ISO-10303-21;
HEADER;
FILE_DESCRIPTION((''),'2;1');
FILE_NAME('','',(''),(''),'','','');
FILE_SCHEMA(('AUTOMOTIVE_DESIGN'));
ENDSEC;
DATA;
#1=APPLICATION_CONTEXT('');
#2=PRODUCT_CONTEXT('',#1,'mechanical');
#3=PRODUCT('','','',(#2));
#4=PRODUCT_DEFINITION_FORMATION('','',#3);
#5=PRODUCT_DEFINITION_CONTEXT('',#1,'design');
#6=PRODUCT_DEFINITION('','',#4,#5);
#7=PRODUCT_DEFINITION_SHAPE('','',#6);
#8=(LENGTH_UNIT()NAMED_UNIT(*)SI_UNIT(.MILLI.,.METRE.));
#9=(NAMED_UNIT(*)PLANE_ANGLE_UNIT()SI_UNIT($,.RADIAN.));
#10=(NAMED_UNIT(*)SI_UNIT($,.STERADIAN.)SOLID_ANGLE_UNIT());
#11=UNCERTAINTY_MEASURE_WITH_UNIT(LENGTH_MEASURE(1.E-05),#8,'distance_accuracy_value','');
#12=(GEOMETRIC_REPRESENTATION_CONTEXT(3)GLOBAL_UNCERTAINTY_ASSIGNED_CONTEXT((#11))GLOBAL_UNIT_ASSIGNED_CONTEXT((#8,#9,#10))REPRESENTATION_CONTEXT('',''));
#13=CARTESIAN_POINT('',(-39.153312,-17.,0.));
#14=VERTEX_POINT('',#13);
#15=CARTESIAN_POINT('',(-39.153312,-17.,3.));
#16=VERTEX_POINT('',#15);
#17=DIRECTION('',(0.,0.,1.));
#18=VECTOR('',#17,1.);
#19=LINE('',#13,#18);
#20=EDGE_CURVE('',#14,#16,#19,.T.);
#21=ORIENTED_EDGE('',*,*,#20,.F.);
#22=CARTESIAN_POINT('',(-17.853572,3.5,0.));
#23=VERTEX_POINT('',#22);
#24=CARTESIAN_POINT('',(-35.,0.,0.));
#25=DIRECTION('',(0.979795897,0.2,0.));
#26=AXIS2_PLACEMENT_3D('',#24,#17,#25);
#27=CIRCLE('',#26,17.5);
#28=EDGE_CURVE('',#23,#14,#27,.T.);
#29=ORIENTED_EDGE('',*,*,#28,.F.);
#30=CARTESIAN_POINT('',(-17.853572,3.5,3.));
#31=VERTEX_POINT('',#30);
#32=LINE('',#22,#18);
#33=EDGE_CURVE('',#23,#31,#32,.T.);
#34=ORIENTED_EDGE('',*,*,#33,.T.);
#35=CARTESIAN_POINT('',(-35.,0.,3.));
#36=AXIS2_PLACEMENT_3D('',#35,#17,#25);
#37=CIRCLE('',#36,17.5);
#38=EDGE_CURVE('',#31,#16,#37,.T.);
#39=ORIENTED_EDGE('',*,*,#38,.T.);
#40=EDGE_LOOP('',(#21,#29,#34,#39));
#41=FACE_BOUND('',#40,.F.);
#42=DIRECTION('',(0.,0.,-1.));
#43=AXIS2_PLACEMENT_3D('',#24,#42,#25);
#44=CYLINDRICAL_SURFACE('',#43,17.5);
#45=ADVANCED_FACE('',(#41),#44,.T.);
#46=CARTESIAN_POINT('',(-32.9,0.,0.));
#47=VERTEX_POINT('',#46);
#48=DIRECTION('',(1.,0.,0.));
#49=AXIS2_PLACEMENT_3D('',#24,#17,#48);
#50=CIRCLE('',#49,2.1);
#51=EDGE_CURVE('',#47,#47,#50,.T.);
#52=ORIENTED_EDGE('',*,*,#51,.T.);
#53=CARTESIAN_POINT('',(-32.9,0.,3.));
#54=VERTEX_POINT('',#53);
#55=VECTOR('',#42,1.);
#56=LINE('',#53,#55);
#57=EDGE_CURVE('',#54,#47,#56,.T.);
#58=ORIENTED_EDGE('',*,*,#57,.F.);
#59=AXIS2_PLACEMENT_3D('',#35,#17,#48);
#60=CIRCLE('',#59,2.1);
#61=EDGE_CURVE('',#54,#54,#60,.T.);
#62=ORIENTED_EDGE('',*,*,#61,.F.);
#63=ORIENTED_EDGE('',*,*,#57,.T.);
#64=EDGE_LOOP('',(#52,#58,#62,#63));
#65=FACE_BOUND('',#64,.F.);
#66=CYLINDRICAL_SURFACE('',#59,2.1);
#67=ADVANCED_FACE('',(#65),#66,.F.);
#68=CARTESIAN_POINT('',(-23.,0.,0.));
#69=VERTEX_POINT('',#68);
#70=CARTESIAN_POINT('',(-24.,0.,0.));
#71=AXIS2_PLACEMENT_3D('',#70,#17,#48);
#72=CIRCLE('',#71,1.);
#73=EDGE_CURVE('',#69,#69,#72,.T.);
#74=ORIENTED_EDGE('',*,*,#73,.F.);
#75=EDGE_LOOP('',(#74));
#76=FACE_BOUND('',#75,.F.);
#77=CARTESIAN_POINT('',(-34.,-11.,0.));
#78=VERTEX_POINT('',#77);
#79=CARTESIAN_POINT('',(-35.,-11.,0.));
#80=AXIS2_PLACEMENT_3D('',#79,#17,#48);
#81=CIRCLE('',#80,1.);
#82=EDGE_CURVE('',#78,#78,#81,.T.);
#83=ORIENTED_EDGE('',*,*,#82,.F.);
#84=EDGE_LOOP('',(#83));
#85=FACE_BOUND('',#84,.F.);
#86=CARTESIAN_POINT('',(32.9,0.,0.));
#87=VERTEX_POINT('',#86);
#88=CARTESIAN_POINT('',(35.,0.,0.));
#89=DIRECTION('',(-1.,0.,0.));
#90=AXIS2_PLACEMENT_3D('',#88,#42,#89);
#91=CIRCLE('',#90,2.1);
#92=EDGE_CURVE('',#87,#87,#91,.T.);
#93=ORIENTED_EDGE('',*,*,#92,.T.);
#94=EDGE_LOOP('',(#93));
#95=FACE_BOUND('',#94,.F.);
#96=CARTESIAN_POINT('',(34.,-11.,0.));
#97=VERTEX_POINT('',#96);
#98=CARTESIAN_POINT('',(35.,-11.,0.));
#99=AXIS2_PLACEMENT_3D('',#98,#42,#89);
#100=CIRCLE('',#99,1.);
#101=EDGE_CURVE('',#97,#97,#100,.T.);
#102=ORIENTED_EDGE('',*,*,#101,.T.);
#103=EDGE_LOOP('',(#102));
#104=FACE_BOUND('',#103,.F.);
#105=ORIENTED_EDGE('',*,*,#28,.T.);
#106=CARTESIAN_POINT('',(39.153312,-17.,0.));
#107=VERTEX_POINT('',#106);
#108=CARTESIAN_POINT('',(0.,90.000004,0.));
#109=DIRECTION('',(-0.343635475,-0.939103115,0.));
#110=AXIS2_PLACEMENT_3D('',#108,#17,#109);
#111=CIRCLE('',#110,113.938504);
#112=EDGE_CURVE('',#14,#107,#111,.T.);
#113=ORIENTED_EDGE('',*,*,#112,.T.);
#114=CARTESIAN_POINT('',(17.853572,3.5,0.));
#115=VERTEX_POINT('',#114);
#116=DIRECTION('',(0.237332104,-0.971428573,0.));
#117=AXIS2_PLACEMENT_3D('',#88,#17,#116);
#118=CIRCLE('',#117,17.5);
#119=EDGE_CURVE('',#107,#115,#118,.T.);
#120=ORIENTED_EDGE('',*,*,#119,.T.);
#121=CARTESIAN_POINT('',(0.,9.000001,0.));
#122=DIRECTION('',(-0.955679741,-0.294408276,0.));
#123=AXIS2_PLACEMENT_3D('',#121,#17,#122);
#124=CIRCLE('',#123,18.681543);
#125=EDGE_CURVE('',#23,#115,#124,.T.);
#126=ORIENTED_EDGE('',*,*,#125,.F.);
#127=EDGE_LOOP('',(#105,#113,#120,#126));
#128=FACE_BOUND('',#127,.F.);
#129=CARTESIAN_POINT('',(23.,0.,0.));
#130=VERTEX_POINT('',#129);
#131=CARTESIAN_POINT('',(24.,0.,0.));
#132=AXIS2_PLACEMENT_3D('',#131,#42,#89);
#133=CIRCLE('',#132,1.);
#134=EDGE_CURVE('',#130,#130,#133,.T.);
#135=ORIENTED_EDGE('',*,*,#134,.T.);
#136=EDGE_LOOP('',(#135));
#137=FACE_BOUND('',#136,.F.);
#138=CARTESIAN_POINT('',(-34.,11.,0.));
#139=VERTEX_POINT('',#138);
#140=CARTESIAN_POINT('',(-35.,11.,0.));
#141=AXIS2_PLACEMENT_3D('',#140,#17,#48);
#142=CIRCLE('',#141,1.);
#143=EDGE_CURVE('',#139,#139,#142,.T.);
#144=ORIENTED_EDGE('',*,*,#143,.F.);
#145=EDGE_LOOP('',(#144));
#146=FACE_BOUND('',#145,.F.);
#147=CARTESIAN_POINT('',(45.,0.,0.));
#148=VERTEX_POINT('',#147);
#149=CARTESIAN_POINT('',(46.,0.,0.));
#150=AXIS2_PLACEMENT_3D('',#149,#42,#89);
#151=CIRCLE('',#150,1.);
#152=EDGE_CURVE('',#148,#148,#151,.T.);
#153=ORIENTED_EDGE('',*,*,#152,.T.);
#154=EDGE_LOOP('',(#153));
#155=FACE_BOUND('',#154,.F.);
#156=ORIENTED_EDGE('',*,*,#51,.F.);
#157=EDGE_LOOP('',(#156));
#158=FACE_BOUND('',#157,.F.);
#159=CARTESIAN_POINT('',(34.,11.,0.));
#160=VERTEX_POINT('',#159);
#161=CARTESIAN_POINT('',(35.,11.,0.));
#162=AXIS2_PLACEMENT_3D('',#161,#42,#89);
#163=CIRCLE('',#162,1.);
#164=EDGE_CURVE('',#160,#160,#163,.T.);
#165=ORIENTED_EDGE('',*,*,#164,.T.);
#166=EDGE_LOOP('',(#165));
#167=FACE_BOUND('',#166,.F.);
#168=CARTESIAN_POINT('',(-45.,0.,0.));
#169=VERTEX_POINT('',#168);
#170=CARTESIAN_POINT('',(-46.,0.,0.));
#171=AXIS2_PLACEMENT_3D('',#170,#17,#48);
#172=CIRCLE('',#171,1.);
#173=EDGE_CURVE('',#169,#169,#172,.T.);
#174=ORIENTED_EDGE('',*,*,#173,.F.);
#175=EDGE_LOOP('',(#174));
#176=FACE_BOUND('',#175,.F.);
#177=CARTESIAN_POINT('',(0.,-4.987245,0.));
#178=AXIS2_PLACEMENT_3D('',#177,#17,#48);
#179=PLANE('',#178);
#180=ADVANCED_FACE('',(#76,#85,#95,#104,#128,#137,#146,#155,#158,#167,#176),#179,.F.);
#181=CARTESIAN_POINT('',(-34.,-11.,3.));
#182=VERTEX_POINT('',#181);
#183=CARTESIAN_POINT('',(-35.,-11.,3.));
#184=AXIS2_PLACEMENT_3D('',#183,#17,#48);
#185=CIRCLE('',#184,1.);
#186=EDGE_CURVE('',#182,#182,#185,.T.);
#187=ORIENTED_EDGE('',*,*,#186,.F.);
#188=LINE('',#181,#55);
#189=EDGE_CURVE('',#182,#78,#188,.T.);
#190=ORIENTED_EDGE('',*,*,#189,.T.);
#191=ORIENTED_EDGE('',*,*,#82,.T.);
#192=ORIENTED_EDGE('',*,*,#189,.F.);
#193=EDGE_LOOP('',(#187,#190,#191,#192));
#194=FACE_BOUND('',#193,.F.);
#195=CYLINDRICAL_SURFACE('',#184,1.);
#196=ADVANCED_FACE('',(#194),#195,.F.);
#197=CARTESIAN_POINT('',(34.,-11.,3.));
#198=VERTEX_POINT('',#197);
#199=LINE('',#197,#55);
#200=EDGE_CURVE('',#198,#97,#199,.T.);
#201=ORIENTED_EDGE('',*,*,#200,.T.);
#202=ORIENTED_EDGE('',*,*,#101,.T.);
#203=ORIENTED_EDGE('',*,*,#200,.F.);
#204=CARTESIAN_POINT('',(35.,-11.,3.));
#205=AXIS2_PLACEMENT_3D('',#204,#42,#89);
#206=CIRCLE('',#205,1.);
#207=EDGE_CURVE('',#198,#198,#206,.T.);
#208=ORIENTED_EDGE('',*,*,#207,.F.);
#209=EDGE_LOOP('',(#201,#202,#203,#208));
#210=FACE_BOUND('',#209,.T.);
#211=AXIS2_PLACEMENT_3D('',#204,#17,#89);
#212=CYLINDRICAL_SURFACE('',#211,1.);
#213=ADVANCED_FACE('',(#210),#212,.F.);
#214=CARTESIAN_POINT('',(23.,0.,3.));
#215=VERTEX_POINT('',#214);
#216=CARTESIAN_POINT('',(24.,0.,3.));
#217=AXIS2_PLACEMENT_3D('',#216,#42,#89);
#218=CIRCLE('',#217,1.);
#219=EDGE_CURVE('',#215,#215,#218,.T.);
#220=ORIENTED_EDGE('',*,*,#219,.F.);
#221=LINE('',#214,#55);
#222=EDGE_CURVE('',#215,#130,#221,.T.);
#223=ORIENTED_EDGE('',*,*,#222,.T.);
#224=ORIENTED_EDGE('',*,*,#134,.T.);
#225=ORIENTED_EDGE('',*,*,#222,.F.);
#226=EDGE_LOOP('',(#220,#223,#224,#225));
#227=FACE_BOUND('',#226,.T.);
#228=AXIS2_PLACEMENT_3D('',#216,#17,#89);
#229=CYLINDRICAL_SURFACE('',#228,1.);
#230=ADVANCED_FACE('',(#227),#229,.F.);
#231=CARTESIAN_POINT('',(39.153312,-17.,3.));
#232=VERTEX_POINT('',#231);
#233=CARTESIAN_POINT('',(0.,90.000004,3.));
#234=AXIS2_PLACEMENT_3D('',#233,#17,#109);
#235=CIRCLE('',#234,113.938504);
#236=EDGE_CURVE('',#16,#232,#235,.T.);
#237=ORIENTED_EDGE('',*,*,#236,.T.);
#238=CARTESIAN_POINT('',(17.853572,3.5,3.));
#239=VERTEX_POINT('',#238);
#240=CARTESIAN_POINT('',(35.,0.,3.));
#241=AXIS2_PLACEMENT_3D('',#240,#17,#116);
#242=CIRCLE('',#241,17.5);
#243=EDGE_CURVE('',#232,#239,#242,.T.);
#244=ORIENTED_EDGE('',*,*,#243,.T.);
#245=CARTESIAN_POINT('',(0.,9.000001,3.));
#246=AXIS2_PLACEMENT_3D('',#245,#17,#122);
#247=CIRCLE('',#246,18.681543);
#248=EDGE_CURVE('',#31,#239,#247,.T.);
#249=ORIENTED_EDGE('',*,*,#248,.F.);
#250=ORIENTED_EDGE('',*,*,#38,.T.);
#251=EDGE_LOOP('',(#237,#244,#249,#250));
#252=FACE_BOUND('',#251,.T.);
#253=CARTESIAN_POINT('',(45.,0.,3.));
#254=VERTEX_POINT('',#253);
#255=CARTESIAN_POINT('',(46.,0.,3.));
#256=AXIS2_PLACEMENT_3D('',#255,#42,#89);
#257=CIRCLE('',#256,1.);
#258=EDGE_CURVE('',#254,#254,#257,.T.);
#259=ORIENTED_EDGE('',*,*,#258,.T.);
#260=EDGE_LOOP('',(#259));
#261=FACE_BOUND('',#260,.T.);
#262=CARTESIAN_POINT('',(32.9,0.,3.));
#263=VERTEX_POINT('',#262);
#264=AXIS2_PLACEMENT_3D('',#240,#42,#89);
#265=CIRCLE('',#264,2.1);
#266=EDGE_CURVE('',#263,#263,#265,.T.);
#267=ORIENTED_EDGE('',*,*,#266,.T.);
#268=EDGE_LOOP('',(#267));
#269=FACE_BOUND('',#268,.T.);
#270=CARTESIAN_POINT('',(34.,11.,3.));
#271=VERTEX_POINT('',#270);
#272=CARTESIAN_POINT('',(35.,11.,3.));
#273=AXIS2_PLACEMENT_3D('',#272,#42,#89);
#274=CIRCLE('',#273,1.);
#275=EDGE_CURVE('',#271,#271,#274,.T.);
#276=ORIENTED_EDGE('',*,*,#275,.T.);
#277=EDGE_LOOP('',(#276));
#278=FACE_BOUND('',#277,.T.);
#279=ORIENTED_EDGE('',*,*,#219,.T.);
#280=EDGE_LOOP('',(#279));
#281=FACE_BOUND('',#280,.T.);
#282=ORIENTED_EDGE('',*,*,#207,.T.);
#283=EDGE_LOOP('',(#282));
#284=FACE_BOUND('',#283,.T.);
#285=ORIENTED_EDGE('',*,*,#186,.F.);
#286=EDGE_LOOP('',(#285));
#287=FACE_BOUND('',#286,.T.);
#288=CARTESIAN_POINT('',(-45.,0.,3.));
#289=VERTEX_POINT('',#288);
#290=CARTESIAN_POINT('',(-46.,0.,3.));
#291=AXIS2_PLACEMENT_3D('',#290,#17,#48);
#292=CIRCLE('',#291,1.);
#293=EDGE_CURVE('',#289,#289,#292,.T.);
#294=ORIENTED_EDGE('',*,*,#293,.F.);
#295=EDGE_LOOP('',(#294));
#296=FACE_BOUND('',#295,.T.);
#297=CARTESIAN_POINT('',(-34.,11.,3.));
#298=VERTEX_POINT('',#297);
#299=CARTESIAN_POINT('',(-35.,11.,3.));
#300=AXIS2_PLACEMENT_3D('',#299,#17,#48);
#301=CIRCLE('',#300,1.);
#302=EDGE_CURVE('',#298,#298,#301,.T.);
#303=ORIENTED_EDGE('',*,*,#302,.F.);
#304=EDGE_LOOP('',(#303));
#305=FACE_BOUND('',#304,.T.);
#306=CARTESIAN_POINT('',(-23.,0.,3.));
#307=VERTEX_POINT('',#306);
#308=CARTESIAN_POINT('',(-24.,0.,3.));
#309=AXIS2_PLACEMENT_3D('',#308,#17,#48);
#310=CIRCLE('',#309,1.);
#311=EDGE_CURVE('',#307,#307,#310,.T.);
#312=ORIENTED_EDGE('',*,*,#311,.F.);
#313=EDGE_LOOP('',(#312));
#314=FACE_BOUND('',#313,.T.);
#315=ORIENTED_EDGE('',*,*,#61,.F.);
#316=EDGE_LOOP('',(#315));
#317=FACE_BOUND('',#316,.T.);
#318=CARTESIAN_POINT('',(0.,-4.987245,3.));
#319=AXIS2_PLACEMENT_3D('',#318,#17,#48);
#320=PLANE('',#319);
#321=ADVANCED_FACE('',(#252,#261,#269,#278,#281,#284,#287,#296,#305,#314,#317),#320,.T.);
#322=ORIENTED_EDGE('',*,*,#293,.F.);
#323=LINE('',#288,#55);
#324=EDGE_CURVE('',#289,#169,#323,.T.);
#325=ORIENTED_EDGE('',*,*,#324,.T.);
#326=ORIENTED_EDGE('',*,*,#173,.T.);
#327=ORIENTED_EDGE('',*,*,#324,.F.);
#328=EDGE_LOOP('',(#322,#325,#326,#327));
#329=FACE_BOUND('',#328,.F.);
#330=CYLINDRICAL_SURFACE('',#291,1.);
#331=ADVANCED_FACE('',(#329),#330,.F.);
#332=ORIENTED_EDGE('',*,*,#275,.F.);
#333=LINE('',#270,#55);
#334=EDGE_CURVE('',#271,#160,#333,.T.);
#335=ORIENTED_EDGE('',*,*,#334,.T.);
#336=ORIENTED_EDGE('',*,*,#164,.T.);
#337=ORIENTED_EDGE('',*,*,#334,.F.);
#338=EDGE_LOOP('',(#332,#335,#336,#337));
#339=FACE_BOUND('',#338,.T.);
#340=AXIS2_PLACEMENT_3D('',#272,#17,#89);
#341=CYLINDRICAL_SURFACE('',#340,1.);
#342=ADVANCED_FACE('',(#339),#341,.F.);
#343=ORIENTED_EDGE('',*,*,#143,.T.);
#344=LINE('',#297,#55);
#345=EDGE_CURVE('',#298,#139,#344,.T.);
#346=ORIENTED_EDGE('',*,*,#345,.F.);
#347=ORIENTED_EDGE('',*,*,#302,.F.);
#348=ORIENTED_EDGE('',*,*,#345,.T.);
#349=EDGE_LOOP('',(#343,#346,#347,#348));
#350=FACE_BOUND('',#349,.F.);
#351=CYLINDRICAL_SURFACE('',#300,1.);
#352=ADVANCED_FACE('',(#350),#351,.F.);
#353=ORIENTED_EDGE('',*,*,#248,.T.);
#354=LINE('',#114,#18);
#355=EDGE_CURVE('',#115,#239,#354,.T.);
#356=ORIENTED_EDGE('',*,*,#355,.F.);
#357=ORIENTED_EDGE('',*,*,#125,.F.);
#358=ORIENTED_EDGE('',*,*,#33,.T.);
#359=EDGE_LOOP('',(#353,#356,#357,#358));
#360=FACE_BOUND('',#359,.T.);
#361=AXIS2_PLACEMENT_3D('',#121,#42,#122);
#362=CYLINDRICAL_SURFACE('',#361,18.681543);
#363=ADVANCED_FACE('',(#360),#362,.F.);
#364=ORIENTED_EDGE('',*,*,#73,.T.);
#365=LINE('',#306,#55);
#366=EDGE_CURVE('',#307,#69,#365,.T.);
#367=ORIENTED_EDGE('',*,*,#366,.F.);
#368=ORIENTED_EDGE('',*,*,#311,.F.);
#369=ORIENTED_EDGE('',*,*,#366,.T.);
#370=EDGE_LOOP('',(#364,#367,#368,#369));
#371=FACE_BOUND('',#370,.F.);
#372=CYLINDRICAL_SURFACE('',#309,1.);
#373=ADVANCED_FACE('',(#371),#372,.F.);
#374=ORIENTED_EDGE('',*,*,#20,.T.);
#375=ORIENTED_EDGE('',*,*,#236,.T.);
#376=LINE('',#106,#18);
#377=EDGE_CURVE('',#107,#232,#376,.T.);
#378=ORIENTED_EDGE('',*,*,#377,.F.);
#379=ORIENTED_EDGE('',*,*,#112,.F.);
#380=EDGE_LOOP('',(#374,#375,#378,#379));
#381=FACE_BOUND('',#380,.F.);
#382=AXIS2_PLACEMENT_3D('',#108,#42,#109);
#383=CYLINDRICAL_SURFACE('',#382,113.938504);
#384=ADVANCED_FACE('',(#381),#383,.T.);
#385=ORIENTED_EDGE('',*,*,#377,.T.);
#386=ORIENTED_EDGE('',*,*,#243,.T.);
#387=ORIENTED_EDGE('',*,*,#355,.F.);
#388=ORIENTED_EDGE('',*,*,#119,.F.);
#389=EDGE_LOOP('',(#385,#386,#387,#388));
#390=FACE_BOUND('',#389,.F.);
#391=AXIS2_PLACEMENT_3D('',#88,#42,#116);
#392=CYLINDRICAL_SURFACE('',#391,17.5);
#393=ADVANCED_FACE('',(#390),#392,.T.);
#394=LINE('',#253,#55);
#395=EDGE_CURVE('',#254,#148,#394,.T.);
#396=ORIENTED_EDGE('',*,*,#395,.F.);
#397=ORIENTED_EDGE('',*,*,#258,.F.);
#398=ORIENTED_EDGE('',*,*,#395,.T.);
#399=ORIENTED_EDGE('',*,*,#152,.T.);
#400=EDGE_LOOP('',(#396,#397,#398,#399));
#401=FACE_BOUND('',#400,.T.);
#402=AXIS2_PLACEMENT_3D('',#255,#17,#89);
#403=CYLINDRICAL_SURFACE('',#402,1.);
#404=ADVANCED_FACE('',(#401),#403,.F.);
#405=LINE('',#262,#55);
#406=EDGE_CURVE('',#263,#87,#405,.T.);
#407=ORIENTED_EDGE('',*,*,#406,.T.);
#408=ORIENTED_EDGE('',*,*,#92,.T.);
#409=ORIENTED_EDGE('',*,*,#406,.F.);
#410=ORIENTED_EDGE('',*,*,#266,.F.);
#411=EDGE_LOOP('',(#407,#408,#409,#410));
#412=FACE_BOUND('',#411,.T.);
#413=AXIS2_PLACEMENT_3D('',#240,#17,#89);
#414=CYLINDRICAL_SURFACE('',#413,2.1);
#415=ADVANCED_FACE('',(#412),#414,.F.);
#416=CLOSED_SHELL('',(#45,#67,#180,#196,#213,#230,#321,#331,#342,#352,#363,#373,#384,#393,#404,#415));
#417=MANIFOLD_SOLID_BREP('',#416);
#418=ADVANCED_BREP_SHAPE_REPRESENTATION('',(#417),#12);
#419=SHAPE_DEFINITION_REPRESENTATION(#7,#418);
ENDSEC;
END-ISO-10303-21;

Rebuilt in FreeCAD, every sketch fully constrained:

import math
import FreeCAD as App
import Part
import Sketcher
from FreeCAD import Vector
Q = App.Units.Quantity

doc = App.newDocument("Part")
body = doc.addObject("PartDesign::Body", "Body")

sketch1 = body.newObject("Sketcher::SketchObject", "Sketch")
sketch1.AttachmentSupport = (doc.getObject("XY_Plane"), [""])
sketch1.MapMode = "FlatFace"
sketch1.addGeometry(Part.ArcOfCircle(Part.Circle(Vector(0, 90, 0), Vector(0, 0, 1), 114), math.radians(-110), math.radians(-70)), False)
sketch1.addGeometry(Part.ArcOfCircle(Part.Circle(Vector(35, 0, 0), Vector(0, 0, 1), 17), math.radians(-76), math.radians(168)), False)
sketch1.addGeometry(Part.ArcOfCircle(Part.Circle(Vector(0, 9, 0), Vector(0, 0, 1), 19), math.radians(-163), math.radians(-17)), False)
sketch1.addGeometry(Part.ArcOfCircle(Part.Circle(Vector(-35, 0, 0), Vector(0, 0, 1), 17), math.radians(12), math.radians(256)), False)
sketch1.addConstraint(Sketcher.Constraint("Coincident", 0, 2, 1, 1))
sketch1.addConstraint(Sketcher.Constraint("Coincident", 1, 2, 2, 2))
sketch1.addConstraint(Sketcher.Constraint("Coincident", 2, 1, 3, 1))
sketch1.addConstraint(Sketcher.Constraint("Coincident", 3, 2, 0, 1))
sketch1.addConstraint(Sketcher.Constraint("Equal", 1, 3))
sketch1.addConstraint(Sketcher.Constraint("Symmetric", 1, 3, 3, 3, -1, 1))
sketch1.addConstraint(Sketcher.Constraint("Symmetric", 1, 2, 2, 1, -2))
sketch1.addConstraint(Sketcher.Constraint("PointOnObject", 0, 3, -2))
sketch1.addConstraint(Sketcher.Constraint("Radius", 1, Q("17.5 mm")))
sketch1.addConstraint(Sketcher.Constraint("DistanceX", -1, 1, 1, 3, Q("35 mm")))
sketch1.addConstraint(Sketcher.Constraint("DistanceY", -1, 1, 2, 3, Q("9.000001 mm")))
sketch1.addConstraint(Sketcher.Constraint("DistanceY", 0, 2, -1, 1, Q("17 mm")))
sketch1.addConstraint(Sketcher.Constraint("DistanceY", -1, 1, 1, 2, Q("3.5 mm")))
sketch1.addConstraint(Sketcher.Constraint("Radius", 0, Q("113.938504 mm")))
pad1 = body.newObject("PartDesign::Pad", "Pad")
pad1.Profile = sketch1
pad1.Length = 3

sketch2 = body.newObject("Sketcher::SketchObject", "Sketch001")
sketch2.AttachmentSupport = (doc.getObject("XY_Plane"), [""])
sketch2.MapMode = "FlatFace"
sketch2.AttachmentOffset = App.Placement(Vector(0, 0, 3), App.Rotation())
sketch2.addGeometry(Part.Circle(Vector(-35, 11, 0), Vector(0, 0, 1), 1), False)
sketch2.addGeometry(Part.Circle(Vector(-35, -11, 0), Vector(0, 0, 1), 1), False)
sketch2.addGeometry(Part.Circle(Vector(-46, 0, 0), Vector(0, 0, 1), 1), False)
sketch2.addGeometry(Part.Circle(Vector(-24, 0, 0), Vector(0, 0, 1), 1), False)
sketch2.addGeometry(Part.Circle(Vector(-35, 0, 0), Vector(0, 0, 1), 2.1), False)
sketch2.addConstraint(Sketcher.Constraint("Equal", 0, 1))
sketch2.addConstraint(Sketcher.Constraint("Equal", 1, 2))
sketch2.addConstraint(Sketcher.Constraint("Equal", 2, 3))
sketch2.addConstraint(Sketcher.Constraint("Symmetric", 0, 3, 1, 3, -1))
sketch2.addConstraint(Sketcher.Constraint("PointOnObject", 2, 3, -1))
sketch2.addConstraint(Sketcher.Constraint("PointOnObject", 3, 3, -1))
sketch2.addConstraint(Sketcher.Constraint("PointOnObject", 4, 3, -1))
sketch2.addConstraint(Sketcher.Constraint("Vertical", 1, 3, 4, 3))
sketch2.addConstraint(Sketcher.Constraint("Diameter", 0, Q("2 mm")))
sketch2.addConstraint(Sketcher.Constraint("Diameter", 4, Q("4.2 mm")))
sketch2.addConstraint(Sketcher.Constraint("DistanceX", 0, 3, -1, 1, Q("35 mm")))
sketch2.addConstraint(Sketcher.Constraint("DistanceY", -1, 1, 0, 3, Q("11 mm")))
sketch2.addConstraint(Sketcher.Constraint("DistanceX", 2, 3, -1, 1, Q("46 mm")))
sketch2.addConstraint(Sketcher.Constraint("DistanceX", 3, 3, -1, 1, Q("24 mm")))
pocket1 = body.newObject("PartDesign::Pocket", "Pocket")
pocket1.Profile = sketch2
pocket1.Length = 3
doc.recompute()

mirrored = body.newObject("PartDesign::Mirrored", "Mirrored")
mirrored.Originals = [pocket1]
mirrored.MirrorPlane = (doc.getObject("YZ_Plane"), [""])
body.Tip = mirrored

doc.recompute()
